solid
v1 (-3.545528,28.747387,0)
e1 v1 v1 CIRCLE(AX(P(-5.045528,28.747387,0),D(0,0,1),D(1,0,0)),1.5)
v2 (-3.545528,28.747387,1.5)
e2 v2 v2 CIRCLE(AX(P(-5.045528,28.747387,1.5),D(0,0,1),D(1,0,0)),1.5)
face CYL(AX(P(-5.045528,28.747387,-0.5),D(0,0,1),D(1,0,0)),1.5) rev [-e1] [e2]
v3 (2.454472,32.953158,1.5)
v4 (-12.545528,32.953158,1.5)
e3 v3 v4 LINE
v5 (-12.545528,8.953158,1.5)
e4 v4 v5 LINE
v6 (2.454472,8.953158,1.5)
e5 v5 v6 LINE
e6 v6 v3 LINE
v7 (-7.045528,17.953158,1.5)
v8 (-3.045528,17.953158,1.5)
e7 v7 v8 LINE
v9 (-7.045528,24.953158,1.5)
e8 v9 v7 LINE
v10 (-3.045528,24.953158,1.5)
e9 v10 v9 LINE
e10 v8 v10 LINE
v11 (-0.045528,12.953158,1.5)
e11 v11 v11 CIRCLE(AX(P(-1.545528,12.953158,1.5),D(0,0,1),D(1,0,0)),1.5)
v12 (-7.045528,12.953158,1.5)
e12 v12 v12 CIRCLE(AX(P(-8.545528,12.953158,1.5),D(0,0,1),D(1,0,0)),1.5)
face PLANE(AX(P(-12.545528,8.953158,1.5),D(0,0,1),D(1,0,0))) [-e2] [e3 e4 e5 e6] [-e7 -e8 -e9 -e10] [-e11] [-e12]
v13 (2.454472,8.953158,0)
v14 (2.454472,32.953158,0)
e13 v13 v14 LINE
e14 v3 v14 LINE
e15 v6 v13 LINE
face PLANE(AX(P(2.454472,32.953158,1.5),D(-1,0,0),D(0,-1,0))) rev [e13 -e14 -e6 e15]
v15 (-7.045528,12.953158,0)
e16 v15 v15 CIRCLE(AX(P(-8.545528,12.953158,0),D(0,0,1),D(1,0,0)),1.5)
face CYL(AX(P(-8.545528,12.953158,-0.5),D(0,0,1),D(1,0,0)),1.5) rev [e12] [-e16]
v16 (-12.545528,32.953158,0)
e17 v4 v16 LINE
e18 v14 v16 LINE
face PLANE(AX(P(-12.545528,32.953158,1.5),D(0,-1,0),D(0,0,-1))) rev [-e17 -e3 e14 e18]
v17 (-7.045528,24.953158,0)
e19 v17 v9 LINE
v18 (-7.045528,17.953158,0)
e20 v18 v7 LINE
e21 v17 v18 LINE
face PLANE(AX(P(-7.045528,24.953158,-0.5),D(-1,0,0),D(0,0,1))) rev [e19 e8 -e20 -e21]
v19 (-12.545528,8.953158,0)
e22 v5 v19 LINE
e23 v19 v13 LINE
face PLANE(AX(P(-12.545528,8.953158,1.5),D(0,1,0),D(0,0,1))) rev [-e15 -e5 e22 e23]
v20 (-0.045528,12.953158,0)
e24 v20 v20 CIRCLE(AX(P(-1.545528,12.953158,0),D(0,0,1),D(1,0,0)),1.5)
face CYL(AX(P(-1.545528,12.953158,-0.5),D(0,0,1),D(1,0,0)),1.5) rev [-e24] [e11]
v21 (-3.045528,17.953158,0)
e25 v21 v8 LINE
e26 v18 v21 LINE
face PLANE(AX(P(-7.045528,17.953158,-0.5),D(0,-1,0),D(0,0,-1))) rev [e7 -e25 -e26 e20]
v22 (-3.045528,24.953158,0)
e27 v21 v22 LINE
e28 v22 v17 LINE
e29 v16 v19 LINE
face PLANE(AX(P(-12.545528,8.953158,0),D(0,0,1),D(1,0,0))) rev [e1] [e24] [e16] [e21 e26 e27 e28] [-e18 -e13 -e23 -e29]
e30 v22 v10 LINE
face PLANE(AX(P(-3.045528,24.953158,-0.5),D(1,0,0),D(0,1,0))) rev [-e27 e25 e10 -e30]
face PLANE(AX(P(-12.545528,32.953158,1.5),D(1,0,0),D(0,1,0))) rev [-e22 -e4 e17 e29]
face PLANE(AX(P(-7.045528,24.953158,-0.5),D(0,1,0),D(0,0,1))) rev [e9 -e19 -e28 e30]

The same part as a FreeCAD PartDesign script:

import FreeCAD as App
import Part
import Sketcher

V = App.Vector


def add_polygon(sketch, points):
    """Adds a closed chain of lines whose ends are joined by coincident constraints."""
    first, n = sketch.GeometryCount, len(points)
    for a, b in zip(points, points[1:] + points[:1]):
        sketch.addGeometry(Part.LineSegment(App.Vector(*a, 0), App.Vector(*b, 0)), False)
    for i in range(n):
        sketch.addConstraint(Sketcher.Constraint("Coincident", first + i, 2, first + (i + 1) % n, 1))

doc = App.newDocument("Part")
body = doc.addObject("PartDesign::Body", "Body")

sketch1 = body.newObject("Sketcher::SketchObject", "Sketch")
sketch1.AttachmentSupport = (doc.getObject("XY_Plane"), [""])
sketch1.MapMode = "FlatFace"
add_polygon(sketch1, [(-12.545528, 32.953158), (-12.545528, 8.953158), (2.454472, 8.953158), (2.454472, 32.953158)])
sketch1.addConstraint(Sketcher.Constraint("Vertical", 0))
sketch1.addConstraint(Sketcher.Constraint("Horizontal", 1))
sketch1.addConstraint(Sketcher.Constraint("Vertical", 2))
sketch1.addConstraint(Sketcher.Constraint("Horizontal", 3))
sketch1.addConstraint(Sketcher.Constraint("DistanceX", 1, 1, 1, 2, 15.0))
sketch1.addConstraint(Sketcher.Constraint("DistanceY", 0, 2, 0, 1, 24.0))
sketch1.addConstraint(Sketcher.Constraint("DistanceX", 0, 2, -1, 1, 12.545528))
sketch1.addConstraint(Sketcher.Constraint("DistanceY", -1, 1, 0, 2, 8.953158))
pad1 = body.newObject("PartDesign::Pad", "Pad")
pad1.Profile = sketch1
pad1.Length = 1.5

sketch2 = body.newObject("Sketcher::SketchObject", "Sketch001")
sketch2.AttachmentSupport = (doc.getObject("XY_Plane"), [""])
sketch2.MapMode = "FlatFace"
sketch2.AttachmentOffset = App.Placement(V(0, 0, 1.5), App.Rotation())
sketch2.addGeometry(Part.Circle(V(-8.545528, 12.953158, 0), V(0, 0, 1), 1.5), False)
sketch2.addGeometry(Part.Circle(V(-1.545528, 12.953158, 0), V(0, 0, 1), 1.5), False)
sketch2.addGeometry(Part.Circle(V(-5.045528, 28.747387, 0), V(0, 0, 1), 1.5), False)
add_polygon(sketch2, [(-7.045528, 24.953158), (-7.045528, 17.953158), (-3.045528, 17.953158), (-3.045528, 24.953158)])
sketch2.addConstraint(Sketcher.Constraint("Vertical", 3))
sketch2.addConstraint(Sketcher.Constraint("Horizontal", 4))
sketch2.addConstraint(Sketcher.Constraint("Vertical", 5))
sketch2.addConstraint(Sketcher.Constraint("Horizontal", 6))
sketch2.addConstraint(Sketcher.Constraint("Equal", 0, 1))
sketch2.addConstraint(Sketcher.Constraint("Equal", 1, 2))
sketch2.addConstraint(Sketcher.Constraint("Horizontal", 0, 3, 1, 3))
sketch2.addConstraint(Sketcher.Constraint("Diameter", 0, 3.0))
sketch2.addConstraint(Sketcher.Constraint("DistanceX", 4, 1, 4, 2, 4.0))
sketch2.addConstraint(Sketcher.Constraint("DistanceY", 3, 2, 3, 1, 7.0))
sketch2.addConstraint(Sketcher.Constraint("DistanceX", 0, 3, 1, 3, 7.0))
sketch2.addConstraint(Sketcher.Constraint("DistanceY", 0, 3, 3, 2, 5.0))
sketch2.addConstraint(Sketcher.Constraint("DistanceX", 3, 2, 2, 3, 2.0))
sketch2.addConstraint(Sketcher.Constraint("DistanceX", 0, 3, 2, 3, 3.5))
sketch2.addConstraint(Sketcher.Constraint("DistanceX", 0, 3, -1, 1, 8.545528))
sketch2.addConstraint(Sketcher.Constraint("DistanceY", 0, 3, 2, 3, 15.794229))
sketch2.addConstraint(Sketcher.Constraint("DistanceY", -1, 1, 0, 3, 12.953158))
pocket1 = body.newObject("PartDesign::Pocket", "Pocket")
pocket1.Profile = sketch2
pocket1.Length = 2

doc.recompute()
